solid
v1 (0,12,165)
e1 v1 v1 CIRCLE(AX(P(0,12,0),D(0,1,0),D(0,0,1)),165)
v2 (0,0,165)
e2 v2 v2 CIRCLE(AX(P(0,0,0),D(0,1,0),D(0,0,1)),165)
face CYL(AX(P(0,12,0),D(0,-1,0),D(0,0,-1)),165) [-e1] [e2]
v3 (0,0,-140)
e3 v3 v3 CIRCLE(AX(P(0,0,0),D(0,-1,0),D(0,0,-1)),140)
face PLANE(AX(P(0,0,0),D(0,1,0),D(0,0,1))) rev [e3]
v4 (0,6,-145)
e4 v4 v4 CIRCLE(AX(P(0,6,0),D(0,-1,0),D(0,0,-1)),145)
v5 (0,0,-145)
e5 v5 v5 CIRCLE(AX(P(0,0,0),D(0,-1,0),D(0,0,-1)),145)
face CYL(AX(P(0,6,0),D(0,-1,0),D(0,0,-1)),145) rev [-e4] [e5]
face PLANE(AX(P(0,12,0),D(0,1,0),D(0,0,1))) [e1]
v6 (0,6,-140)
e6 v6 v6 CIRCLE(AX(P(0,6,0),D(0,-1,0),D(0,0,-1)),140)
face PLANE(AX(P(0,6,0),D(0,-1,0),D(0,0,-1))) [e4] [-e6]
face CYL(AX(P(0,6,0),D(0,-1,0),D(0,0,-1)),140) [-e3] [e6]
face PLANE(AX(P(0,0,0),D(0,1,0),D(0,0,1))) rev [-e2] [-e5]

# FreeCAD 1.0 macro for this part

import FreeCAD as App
import Part
import Sketcher
Q = App.Units.Quantity

doc = App.newDocument("Part")
body = doc.addObject("PartDesign::Body", "Body")

# Sketch on XZ plane
sketch1 = doc.addObject("Sketcher::SketchObject", "Sketch")
body.addObject(sketch1)
sketch1.AttachmentSupport = (doc.XZ_Plane, [""])
sketch1.MapMode = "FlatFace"
sketch1.addGeometry(Part.Circle(App.Vector(0, 0, 0), App.Vector(0, 0, 1), 165), False)
sketch1.addConstraint([
    Sketcher.Constraint("Coincident", 0, 3, -1, 1),
    Sketcher.Constraint("Diameter", 0, Q("330 mm")),
])
pad1 = doc.addObject("PartDesign::Pad", "Pad")
body.addObject(pad1)
pad1.Profile = sketch1
pad1.Length = 12
pad1.Reversed = True

# Sketch on XZ plane
sketch2 = doc.addObject("Sketcher::SketchObject", "Sketch001")
body.addObject(sketch2)
sketch2.AttachmentSupport = (doc.XZ_Plane, [""])
sketch2.MapMode = "FlatFace"
sketch2.addGeometry([
    Part.Circle(App.Vector(0, 0, 0), App.Vector(0, 0, 1), 145),
    Part.Circle(App.Vector(0, 0, 0), App.Vector(0, 0, 1), 140),
], False)
sketch2.addConstraint([
    Sketcher.Constraint("Coincident", 0, 3, -1, 1),
    Sketcher.Constraint("Coincident", 1, 3, -1, 1),
    Sketcher.Constraint("Diameter", 0, Q("290 mm")),
    Sketcher.Constraint("Diameter", 1, Q("280 mm")),
])
pocket1 = doc.addObject("PartDesign::Pocket", "Pocket")
body.addObject(pocket1)
pocket1.Profile = sketch2
pocket1.Length = 6

doc.recompute()
